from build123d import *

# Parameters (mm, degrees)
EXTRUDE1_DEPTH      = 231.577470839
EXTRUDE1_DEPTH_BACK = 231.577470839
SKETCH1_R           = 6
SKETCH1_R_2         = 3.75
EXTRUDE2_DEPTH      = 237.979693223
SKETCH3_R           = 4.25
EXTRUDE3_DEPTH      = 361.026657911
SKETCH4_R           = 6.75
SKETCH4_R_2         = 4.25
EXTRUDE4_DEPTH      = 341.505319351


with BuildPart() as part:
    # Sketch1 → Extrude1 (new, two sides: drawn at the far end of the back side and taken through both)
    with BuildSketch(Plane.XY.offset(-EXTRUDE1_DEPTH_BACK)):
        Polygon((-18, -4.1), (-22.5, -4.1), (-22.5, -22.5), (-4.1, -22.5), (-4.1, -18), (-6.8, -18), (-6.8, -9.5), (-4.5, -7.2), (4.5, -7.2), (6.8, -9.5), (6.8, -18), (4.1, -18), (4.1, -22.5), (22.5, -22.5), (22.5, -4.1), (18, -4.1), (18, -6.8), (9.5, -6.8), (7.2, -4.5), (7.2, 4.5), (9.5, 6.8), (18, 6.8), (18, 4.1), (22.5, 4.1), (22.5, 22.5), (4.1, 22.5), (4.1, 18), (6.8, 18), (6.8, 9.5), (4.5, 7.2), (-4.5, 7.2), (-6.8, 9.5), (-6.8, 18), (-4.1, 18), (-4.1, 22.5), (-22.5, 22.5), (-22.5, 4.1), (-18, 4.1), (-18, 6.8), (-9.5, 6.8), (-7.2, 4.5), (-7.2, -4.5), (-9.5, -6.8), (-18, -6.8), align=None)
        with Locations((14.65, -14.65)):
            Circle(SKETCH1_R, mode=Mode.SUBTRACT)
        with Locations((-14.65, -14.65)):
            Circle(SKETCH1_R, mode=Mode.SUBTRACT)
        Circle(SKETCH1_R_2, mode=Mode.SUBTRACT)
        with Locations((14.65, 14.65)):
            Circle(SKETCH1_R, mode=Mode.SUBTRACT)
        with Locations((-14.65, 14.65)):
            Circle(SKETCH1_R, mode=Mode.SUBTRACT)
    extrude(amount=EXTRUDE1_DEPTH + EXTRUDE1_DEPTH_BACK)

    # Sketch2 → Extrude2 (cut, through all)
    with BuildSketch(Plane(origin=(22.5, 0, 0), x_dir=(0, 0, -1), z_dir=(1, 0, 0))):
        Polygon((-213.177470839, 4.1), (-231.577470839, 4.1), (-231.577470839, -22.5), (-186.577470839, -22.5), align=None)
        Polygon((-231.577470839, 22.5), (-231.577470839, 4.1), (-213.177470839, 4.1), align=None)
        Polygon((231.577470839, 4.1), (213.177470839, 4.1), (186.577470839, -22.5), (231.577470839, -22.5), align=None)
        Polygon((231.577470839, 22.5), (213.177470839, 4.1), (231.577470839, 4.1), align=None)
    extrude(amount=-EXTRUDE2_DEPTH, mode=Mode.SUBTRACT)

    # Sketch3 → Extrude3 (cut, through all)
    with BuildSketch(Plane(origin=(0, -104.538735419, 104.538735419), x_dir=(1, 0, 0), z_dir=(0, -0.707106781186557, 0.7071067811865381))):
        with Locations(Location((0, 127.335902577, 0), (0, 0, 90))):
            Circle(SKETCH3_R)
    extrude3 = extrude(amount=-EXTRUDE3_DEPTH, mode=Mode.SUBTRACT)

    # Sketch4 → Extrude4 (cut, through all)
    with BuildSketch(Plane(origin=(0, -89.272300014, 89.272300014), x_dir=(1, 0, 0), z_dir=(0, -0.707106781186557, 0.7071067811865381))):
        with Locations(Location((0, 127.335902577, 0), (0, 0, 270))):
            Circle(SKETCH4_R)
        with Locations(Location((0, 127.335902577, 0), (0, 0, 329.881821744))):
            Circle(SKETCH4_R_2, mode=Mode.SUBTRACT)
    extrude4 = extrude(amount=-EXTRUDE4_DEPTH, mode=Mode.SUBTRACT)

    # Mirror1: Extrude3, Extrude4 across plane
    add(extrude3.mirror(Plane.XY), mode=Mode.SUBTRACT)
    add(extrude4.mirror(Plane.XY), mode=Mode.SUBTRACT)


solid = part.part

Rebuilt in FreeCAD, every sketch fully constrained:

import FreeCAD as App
import Part
import Sketcher
from FreeCAD import Vector


def add_polygon(sketch, points):
    """Adds a closed chain of lines whose ends are joined by coincident constraints."""
    first, n = sketch.GeometryCount, len(points)
    for a, b in zip(points, points[1:] + points[:1]):
        sketch.addGeometry(Part.LineSegment(App.Vector(*a, 0), App.Vector(*b, 0)), False)
    for i in range(n):
        sketch.addConstraint(Sketcher.Constraint("Coincident", first + i, 2, first + (i + 1) % n, 1))

doc = App.newDocument("Part")
body = doc.addObject("PartDesign::Body", "Body")

# Sketch on XY plane
sketch1 = body.newObject("Sketcher::SketchObject", "Sketch")
sketch1.AttachmentSupport = (doc.getObject("XY_Plane"), [""])
sketch1.MapMode = "FlatFace"
add_polygon(sketch1, [(-18, -4.1), (-22.5, -4.1), (-22.5, -22.5), (-4.1, -22.5), (-4.1, -18), (-6.8, -18), (-6.8, -9.5), (-4.5, -7.2), (4.5, -7.2), (6.8, -9.5), (6.8, -18), (4.1, -18), (4.1, -22.5), (22.5, -22.5), (22.5, -4.1), (18, -4.1), (18, -6.8), (9.5, -6.8), (7.2, -4.5), (7.2, 4.5), (9.5, 6.8), (18, 6.8), (18, 4.1), (22.5, 4.1), (22.5, 22.5), (4.1, 22.5), (4.1, 18), (6.8, 18), (6.8, 9.5), (4.5, 7.2), (-4.5, 7.2), (-6.8, 9.5), (-6.8, 18), (-4.1, 18), (-4.1, 22.5), (-22.5, 22.5), (-22.5, 4.1), (-18, 4.1), (-18, 6.8), (-9.5, 6.8), (-7.2, 4.5), (-7.2, -4.5), (-9.5, -6.8), (-18, -6.8)])  # lines 0-43
sketch1.addGeometry(Part.Circle(Vector(-14.7, -14.7, 0), Vector(0, 0, 1), 6), False)  # 44
sketch1.addGeometry(Part.Circle(Vector(14.7, -14.7, 0), Vector(0, 0, 1), 6), False)  # 45
sketch1.addGeometry(Part.Circle(Vector(-14.7, 14.7, 0), Vector(0, 0, 1), 6), False)  # 46
sketch1.addGeometry(Part.Circle(Vector(0, 0, 0), Vector(0, 0, 1), 3.8), False)  # 47
sketch1.addGeometry(Part.Circle(Vector(14.7, 14.7, 0), Vector(0, 0, 1), 6), False)  # 48
sketch1.addConstraint(Sketcher.Constraint("Horizontal", 0))
sketch1.addConstraint(Sketcher.Constraint("Vertical", 1))
sketch1.addConstraint(Sketcher.Constraint("Horizontal", 2))
sketch1.addConstraint(Sketcher.Constraint("Vertical", 3))
sketch1.addConstraint(Sketcher.Constraint("Horizontal", 4))
sketch1.addConstraint(Sketcher.Constraint("Vertical", 5))
sketch1.addConstraint(Sketcher.Constraint("Horizontal", 7))
sketch1.addConstraint(Sketcher.Constraint("Vertical", 9))
sketch1.addConstraint(Sketcher.Constraint("Horizontal", 10))
sketch1.addConstraint(Sketcher.Constraint("Vertical", 11))
sketch1.addConstraint(Sketcher.Constraint("Horizontal", 12))
sketch1.addConstraint(Sketcher.Constraint("Vertical", 13))
sketch1.addConstraint(Sketcher.Constraint("Horizontal", 14))
sketch1.addConstraint(Sketcher.Constraint("Vertical", 15))
sketch1.addConstraint(Sketcher.Constraint("Horizontal", 16))
sketch1.addConstraint(Sketcher.Constraint("Vertical", 18))
sketch1.addConstraint(Sketcher.Constraint("Horizontal", 20))
sketch1.addConstraint(Sketcher.Constraint("Vertical", 21))
sketch1.addConstraint(Sketcher.Constraint("Horizontal", 22))
sketch1.addConstraint(Sketcher.Constraint("Vertical", 23))
sketch1.addConstraint(Sketcher.Constraint("Horizontal", 24))
sketch1.addConstraint(Sketcher.Constraint("Vertical", 25))
sketch1.addConstraint(Sketcher.Constraint("Horizontal", 26))
sketch1.addConstraint(Sketcher.Constraint("Vertical", 27))
sketch1.addConstraint(Sketcher.Constraint("Horizontal", 29))
sketch1.addConstraint(Sketcher.Constraint("Vertical", 31))
sketch1.addConstraint(Sketcher.Constraint("Horizontal", 32))
sketch1.addConstraint(Sketcher.Constraint("Vertical", 33))
sketch1.addConstraint(Sketcher.Constraint("Horizontal", 34))
sketch1.addConstraint(Sketcher.Constraint("Vertical", 35))
sketch1.addConstraint(Sketcher.Constraint("Horizontal", 36))
sketch1.addConstraint(Sketcher.Constraint("Vertical", 37))
sketch1.addConstraint(Sketcher.Constraint("Horizontal", 38))
sketch1.addConstraint(Sketcher.Constraint("Vertical", 40))
sketch1.addConstraint(Sketcher.Constraint("Horizontal", 42))
sketch1.addConstraint(Sketcher.Constraint("Vertical", 43))
sketch1.addConstraint(Sketcher.Constraint("Coincident", 47, 3, -1, 1))
sketch1.addConstraint(Sketcher.Constraint("Equal", 44, 45))
sketch1.addConstraint(Sketcher.Constraint("Equal", 45, 46))
sketch1.addConstraint(Sketcher.Constraint("Equal", 46, 48))
sketch1.addConstraint(Sketcher.Constraint("Symmetric", 45, 3, 46, 3, -1, 1))
sketch1.addConstraint(Sketcher.Constraint("Symmetric", 44, 3, 48, 3, -1, 1))
sketch1.addConstraint(Sketcher.Constraint("Symmetric", 0, 2, 22, 2, -1, 1))
sketch1.addConstraint(Sketcher.Constraint("Symmetric", 2, 2, 24, 2, -1, 1))
sketch1.addConstraint(Sketcher.Constraint("Symmetric", 4, 2, 26, 2, -1, 1))
sketch1.addConstraint(Sketcher.Constraint("Symmetric", 6, 2, 28, 2, -1, 1))
sketch1.addConstraint(Sketcher.Constraint("Symmetric", 8, 2, 30, 2, -1, 1))
sketch1.addConstraint(Sketcher.Constraint("Symmetric", 10, 2, 32, 2, -1, 1))
sketch1.addConstraint(Sketcher.Constraint("Symmetric", 12, 2, 34, 2, -1, 1))
sketch1.addConstraint(Sketcher.Constraint("Symmetric", 14, 2, 36, 2, -1, 1))
sketch1.addConstraint(Sketcher.Constraint("Symmetric", 16, 2, 38, 2, -1, 1))
sketch1.addConstraint(Sketcher.Constraint("Symmetric", 17, 2, 39, 2, -1, 1))
sketch1.addConstraint(Sketcher.Constraint("Symmetric", 19, 2, 41, 2, -1, 1))
sketch1.addConstraint(Sketcher.Constraint("Symmetric", 44, 3, 45, 3, -2))
sketch1.addConstraint(Sketcher.Constraint("Symmetric", 5, 2, 8, 2, -2))
sketch1.addConstraint(Sketcher.Constraint("Symmetric", 3, 2, 10, 2, -2))
sketch1.addConstraint(Sketcher.Constraint("Symmetric", 1, 2, 12, 2, -2))
sketch1.addConstraint(Sketcher.Constraint("Symmetric", 21, 2, 36, 2, -2))
sketch1.addConstraint(Sketcher.Constraint("Symmetric", 19, 2, 38, 2, -2))
sketch1.addConstraint(Sketcher.Constraint("Perpendicular", 6, 8))
sketch1.addConstraint(Sketcher.Constraint("Parallel", 8, 17))
sketch1.addConstraint(Sketcher.Constraint("Perpendicular", 17, 19))
sketch1.addConstraint(Sketcher.Constraint("Parallel", 19, 28))
sketch1.addConstraint(Sketcher.Constraint("Perpendicular", 28, 30))
sketch1.addConstraint(Sketcher.Constraint("Perpendicular", 39, 41))
sketch1.addConstraint(Sketcher.Constraint("Horizontal", 18, 2, 39, 2))
sketch1.addConstraint(Sketcher.Constraint("Vertical", 37, 2, 42, 2))
sketch1.addConstraint(Sketcher.Constraint("Equal", 34, 1))
sketch1.addConstraint(Sketcher.Constraint("Equal", 36, 3))
sketch1.addConstraint(Sketcher.Constraint("Equal", 42, 5))
sketch1.addConstraint(Sketcher.Constraint("Equal", 32, 15))
sketch1.addConstraint(Sketcher.Constraint("Equal", 29, 18))
sketch1.addConstraint(Sketcher.Constraint("Equal", 8, 17))
sketch1.addConstraint(Sketcher.Constraint("Diameter", 44, 12.0))
sketch1.addConstraint(Sketcher.Constraint("Diameter", 47, 7.5))
sketch1.addConstraint(Sketcher.Constraint("DistanceX", 7, 1, 7, 2, 9.0))
sketch1.addConstraint(Sketcher.Constraint("DistanceX", 0, 2, 0, 1, 4.5))
sketch1.addConstraint(Sketcher.Constraint("DistanceX", 2, 1, 2, 2, 18.4))
sketch1.addConstraint(Sketcher.Constraint("DistanceX", 4, 2, 4, 1, 2.7))
sketch1.addConstraint(Sketcher.Constraint("DistanceX", 16, 2, 16, 1, 8.5))
sketch1.addConstraint(Sketcher.Constraint("DistanceY", 3, 2, -1, 1, 18.0))
sketch1.addConstraint(Sketcher.Constraint("DistanceX", 44, 3, 45, 3, 29.3))
sketch1.addConstraint(Sketcher.Constraint("DistanceY", 44, 3, 46, 3, 29.3))
pad1 = body.newObject("PartDesign::Pad", "Pad")
pad1.Profile = sketch1
pad1.Type = "TwoLengths"
pad1.Length = 231.577471
pad1.Length2 = 231.577471

# Sketch on YZ plane
sketch2 = body.newObject("Sketcher::SketchObject", "Sketch001")
sketch2.AttachmentSupport = (doc.getObject("YZ_Plane"), [""])
sketch2.MapMode = "FlatFace"
sketch2.AttachmentOffset = App.Placement(Vector(0, 0, 22.5), App.Rotation())
add_polygon(sketch2, [(-22, 232), (-22, 187), (22, 232)])  # lines 0-2
add_polygon(sketch2, [(-22, -187), (-22, -232), (22, -232)])  # lines 3-5
sketch2.addConstraint(Sketcher.Constraint("Vertical", 0))
sketch2.addConstraint(Sketcher.Constraint("Horizontal", 2))
sketch2.addConstraint(Sketcher.Constraint("Vertical", 3))
sketch2.addConstraint(Sketcher.Constraint("Horizontal", 4))
sketch2.addConstraint(Sketcher.Constraint("Symmetric", 1, 2, 3, 2, -1, 1))
sketch2.addConstraint(Sketcher.Constraint("Symmetric", 0, 2, 5, 2, -1))
sketch2.addConstraint(Sketcher.Constraint("Perpendicular", 1, 5))
sketch2.addConstraint(Sketcher.Constraint("Vertical", 1, 2, 4, 2))
sketch2.addConstraint(Sketcher.Constraint("DistanceX", 2, 2, 2, 1, 45.0))
sketch2.addConstraint(Sketcher.Constraint("DistanceY", -1, 1, 0, 2, 186.577471))
pocket1 = body.newObject("PartDesign::Pocket", "Pocket")
pocket1.Profile = sketch2
pocket1.Type = "ThroughAll"

# Sketch on an angled plane
sketch3 = body.newObject("Sketcher::SketchObject", "Sketch002")
sketch3.Placement = App.Placement(Vector(0, -104.538735, 104.538735), App.Rotation(Vector(1, 0, 0), Vector(0, 0.707106781, 0.707106781), Vector(0, -0.707106781, 0.707106781), "ZXY"))
sketch3.addGeometry(Part.Circle(Vector(0, 127.3, 0), Vector(0, 0, 1), 4.2), False)
sketch3.addConstraint(Sketcher.Constraint("PointOnObject", 0, 3, -2))
sketch3.addConstraint(Sketcher.Constraint("Diameter", 0, 8.5))
sketch3.addConstraint(Sketcher.Constraint("DistanceY", -1, 1, 0, 3, 127.335903))
pocket2 = body.newObject("PartDesign::Pocket", "Pocket001")
pocket2.Profile = sketch3
pocket2.Type = "ThroughAll"

# Sketch on an angled plane
sketch4 = body.newObject("Sketcher::SketchObject", "Sketch003")
sketch4.Placement = App.Placement(Vector(0, -89.2723, 89.2723), App.Rotation(Vector(1, 0, 0), Vector(0, 0.707106781, 0.707106781), Vector(0, -0.707106781, 0.707106781), "ZXY"))
sketch4.addGeometry(Part.Circle(Vector(0, 127.3, 0), Vector(0, 0, 1), 6.8), False)
sketch4.addGeometry(Part.Circle(Vector(0, 127.3, 0), Vector(0, 0, 1), 4.2), False)
sketch4.addConstraint(Sketcher.Constraint("Coincident", 1, 3, 0, 3))
sketch4.addConstraint(Sketcher.Constraint("PointOnObject", 0, 3, -2))
sketch4.addConstraint(Sketcher.Constraint("Diameter", 0, 13.5))
sketch4.addConstraint(Sketcher.Constraint("Diameter", 1, 8.5))
sketch4.addConstraint(Sketcher.Constraint("DistanceY", -1, 1, 0, 3, 127.335903))
pocket3 = body.newObject("PartDesign::Pocket", "Pocket002")
pocket3.Profile = sketch4
pocket3.Type = "ThroughAll"
doc.recompute()

mirrored = body.newObject("PartDesign::Mirrored", "Mirrored")
mirrored.Originals = [pocket2, pocket3]
mirrored.MirrorPlane = (doc.getObject("XY_Plane"), [""])
body.Tip = mirrored

doc.recompute()
